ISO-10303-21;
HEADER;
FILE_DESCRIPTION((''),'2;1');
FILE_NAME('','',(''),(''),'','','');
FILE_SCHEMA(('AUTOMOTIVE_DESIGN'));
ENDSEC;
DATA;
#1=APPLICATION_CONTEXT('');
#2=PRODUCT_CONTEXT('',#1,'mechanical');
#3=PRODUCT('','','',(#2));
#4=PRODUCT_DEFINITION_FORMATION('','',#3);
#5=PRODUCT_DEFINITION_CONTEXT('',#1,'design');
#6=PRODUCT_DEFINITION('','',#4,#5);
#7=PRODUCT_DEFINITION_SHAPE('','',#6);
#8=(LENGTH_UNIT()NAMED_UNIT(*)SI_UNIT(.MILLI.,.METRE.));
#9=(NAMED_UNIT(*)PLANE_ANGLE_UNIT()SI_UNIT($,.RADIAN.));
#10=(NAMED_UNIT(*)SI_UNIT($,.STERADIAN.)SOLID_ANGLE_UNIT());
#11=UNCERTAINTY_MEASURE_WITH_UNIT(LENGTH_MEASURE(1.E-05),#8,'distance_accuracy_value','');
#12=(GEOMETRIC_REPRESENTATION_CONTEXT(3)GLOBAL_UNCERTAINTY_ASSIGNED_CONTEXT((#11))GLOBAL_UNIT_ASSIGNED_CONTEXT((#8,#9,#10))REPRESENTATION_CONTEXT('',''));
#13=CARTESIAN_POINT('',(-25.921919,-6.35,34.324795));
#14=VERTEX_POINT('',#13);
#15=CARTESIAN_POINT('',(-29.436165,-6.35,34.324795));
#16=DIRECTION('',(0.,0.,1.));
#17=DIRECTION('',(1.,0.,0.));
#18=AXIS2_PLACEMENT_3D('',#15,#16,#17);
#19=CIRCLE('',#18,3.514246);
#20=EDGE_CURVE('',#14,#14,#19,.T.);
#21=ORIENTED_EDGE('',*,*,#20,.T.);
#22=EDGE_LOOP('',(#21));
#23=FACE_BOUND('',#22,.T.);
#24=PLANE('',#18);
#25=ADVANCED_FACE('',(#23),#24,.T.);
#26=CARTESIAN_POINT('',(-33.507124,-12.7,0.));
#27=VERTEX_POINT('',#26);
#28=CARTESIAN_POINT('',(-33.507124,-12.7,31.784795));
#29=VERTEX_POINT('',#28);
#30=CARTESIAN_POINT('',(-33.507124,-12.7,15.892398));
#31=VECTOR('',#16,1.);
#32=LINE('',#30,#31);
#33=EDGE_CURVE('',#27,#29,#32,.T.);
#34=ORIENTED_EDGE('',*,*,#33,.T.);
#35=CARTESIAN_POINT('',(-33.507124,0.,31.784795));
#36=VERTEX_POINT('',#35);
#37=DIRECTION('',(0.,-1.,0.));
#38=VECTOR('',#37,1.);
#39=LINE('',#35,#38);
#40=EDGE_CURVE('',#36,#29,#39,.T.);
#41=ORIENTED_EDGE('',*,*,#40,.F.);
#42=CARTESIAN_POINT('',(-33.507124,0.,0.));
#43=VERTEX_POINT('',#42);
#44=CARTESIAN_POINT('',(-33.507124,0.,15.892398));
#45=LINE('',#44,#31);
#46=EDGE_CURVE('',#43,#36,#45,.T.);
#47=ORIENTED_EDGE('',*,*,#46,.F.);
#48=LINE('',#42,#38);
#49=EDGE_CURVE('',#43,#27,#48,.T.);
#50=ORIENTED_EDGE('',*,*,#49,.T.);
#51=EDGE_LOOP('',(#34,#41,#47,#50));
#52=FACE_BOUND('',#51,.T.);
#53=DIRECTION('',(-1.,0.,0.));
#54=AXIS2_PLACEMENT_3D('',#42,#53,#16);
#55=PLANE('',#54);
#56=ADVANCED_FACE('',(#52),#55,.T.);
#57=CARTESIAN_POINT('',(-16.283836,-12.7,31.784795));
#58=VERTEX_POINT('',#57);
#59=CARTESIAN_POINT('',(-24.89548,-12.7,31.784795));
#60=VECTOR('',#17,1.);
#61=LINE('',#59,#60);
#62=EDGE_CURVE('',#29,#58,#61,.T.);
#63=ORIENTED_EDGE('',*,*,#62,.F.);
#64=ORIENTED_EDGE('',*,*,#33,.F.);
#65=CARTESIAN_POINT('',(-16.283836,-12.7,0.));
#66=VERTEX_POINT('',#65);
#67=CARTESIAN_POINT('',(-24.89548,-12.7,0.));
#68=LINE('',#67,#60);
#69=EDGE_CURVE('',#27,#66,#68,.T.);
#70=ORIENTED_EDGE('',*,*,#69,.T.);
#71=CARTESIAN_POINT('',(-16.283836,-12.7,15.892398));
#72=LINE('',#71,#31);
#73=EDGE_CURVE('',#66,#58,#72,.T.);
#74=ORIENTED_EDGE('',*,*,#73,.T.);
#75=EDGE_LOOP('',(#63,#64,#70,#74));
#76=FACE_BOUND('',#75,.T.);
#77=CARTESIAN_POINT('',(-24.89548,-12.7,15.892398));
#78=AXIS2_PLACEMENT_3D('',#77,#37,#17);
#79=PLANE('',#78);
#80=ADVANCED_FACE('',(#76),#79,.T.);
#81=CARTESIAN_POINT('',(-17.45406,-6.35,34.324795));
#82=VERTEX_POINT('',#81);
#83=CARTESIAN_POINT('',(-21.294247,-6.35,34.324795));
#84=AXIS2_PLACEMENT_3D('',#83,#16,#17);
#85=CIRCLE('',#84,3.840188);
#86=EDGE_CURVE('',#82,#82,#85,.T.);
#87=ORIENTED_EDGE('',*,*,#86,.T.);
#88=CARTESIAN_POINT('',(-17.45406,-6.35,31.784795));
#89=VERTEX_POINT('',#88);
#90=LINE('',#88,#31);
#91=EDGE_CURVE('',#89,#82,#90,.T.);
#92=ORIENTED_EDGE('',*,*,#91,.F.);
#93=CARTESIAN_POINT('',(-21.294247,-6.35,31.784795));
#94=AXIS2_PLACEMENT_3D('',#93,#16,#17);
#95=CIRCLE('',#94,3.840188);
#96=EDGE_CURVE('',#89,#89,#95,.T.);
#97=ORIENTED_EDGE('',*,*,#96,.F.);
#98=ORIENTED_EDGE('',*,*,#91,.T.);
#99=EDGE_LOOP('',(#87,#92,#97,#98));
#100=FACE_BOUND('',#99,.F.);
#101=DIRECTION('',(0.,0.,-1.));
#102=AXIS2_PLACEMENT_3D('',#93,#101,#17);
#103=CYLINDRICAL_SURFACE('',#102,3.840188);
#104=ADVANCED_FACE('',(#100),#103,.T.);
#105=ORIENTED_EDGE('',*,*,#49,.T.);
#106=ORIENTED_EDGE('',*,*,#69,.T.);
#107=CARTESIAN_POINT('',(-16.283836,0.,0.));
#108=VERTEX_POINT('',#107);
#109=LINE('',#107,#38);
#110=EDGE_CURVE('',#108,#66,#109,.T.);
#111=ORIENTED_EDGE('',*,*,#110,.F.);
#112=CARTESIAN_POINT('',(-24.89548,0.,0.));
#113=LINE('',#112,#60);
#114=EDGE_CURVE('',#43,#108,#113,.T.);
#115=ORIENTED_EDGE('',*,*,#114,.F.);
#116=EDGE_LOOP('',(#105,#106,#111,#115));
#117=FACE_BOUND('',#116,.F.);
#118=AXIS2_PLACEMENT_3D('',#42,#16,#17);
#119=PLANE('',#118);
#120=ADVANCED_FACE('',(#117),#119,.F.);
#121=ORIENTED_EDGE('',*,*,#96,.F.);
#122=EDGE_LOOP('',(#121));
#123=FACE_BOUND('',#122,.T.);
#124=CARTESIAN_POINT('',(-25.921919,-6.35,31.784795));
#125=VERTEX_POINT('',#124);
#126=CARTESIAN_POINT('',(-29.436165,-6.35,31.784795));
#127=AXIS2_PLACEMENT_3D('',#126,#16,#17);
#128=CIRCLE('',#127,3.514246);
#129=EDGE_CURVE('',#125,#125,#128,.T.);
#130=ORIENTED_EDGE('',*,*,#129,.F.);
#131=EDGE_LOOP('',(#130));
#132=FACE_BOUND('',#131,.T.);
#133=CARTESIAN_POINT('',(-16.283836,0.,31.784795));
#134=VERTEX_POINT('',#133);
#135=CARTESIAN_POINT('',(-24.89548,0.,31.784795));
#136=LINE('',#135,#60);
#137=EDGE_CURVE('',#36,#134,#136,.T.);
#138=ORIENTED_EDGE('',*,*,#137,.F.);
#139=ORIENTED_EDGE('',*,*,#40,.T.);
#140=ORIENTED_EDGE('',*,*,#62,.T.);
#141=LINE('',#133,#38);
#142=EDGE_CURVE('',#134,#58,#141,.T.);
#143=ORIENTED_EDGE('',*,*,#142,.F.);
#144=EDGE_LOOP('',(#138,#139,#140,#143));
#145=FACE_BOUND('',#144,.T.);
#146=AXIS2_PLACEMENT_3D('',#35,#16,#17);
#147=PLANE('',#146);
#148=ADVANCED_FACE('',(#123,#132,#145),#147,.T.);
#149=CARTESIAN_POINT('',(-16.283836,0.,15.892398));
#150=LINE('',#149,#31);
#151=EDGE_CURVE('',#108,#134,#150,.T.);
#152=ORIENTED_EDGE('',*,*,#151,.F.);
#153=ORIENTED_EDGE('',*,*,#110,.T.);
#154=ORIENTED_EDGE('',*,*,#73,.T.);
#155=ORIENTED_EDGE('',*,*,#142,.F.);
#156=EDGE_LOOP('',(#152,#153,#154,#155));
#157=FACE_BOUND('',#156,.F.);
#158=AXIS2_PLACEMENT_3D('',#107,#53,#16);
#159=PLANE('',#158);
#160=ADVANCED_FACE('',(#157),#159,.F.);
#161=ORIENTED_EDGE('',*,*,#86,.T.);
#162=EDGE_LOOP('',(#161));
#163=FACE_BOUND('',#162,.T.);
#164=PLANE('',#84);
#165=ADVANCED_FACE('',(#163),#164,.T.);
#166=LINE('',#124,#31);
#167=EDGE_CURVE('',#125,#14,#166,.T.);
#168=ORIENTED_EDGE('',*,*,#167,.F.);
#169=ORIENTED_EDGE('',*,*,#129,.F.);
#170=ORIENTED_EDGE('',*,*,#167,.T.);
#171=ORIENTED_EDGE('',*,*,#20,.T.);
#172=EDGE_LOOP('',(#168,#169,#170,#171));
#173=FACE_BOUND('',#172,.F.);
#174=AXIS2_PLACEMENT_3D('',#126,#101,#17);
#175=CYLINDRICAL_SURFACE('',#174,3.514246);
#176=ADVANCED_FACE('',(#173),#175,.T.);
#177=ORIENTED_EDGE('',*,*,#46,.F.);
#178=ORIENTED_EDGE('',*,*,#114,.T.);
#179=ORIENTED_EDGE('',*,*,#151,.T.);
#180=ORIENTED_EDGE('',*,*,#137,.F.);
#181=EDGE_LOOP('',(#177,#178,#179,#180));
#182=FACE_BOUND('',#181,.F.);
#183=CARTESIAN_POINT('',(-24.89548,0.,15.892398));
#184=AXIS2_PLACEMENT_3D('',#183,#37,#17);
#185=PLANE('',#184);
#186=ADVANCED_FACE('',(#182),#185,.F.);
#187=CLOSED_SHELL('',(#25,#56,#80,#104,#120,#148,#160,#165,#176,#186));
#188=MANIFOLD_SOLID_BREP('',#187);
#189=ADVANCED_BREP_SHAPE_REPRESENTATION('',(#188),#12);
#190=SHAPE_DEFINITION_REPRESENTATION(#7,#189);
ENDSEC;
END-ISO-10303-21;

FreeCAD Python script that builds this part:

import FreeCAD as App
import Part
import Sketcher

V = App.Vector
Q = App.Units.Quantity

doc = App.newDocument("Part")
body = doc.addObject("PartDesign::Body", "Body")

sketch1 = body.newObject("Sketcher::SketchObject", "Sketch")
sketch1.AttachmentSupport = (doc.getObject("XZ_Plane"), [""])
sketch1.MapMode = "FlatFace"
sketch1.addGeometry([
    Part.LineSegment(V(-34, 32, 0), V(-34, 0, 0)),
    Part.LineSegment(V(-34, 0, 0), V(-16, 0, 0)),
    Part.LineSegment(V(-16, 0, 0), V(-16, 32, 0)),
    Part.LineSegment(V(-16, 32, 0), V(-34, 32, 0)),
], False)
sketch1.addConstraint([
    Sketcher.Constraint("Coincident", 0, 2, 1, 1),
    Sketcher.Constraint("Coincident", 1, 2, 2, 1),
    Sketcher.Constraint("Coincident", 2, 2, 3, 1),
    Sketcher.Constraint("Coincident", 3, 2, 0, 1),
    Sketcher.Constraint("Vertical", 0),
    Sketcher.Constraint("Horizontal", 1),
    Sketcher.Constraint("Vertical", 2),
    Sketcher.Constraint("Horizontal", 3),
    Sketcher.Constraint("PointOnObject", 0, 2, -1),
    Sketcher.Constraint("DistanceX", 1, 1, 1, 2, Q("17.223287 mm")),
    Sketcher.Constraint("DistanceY", 0, 2, 0, 1, Q("31.784795 mm")),
    Sketcher.Constraint("DistanceX", 0, 2, -1, 1, Q("33.507124 mm")),
])
pad1 = body.newObject("PartDesign::Pad", "Pad")
pad1.Profile = sketch1
pad1.Length = Q("0.5 in")

sketch2 = body.newObject("Sketcher::SketchObject", "Sketch001")
sketch2.AttachmentSupport = (doc.getObject("XY_Plane"), [""])
sketch2.MapMode = "FlatFace"
sketch2.AttachmentOffset = App.Placement(V(0, 0, 31.784795), App.Rotation())
sketch2.addGeometry([
    Part.Circle(V(-21.3, -6.3, 0), V(0, 0, 1), 3.8),
    Part.Circle(V(-29.4, -6.3, 0), V(0, 0, 1), 3.5),
], False)
sketch2.addConstraint([
    Sketcher.Constraint("Horizontal", 0, 3, 1, 3),
    Sketcher.Constraint("DistanceY", 0, 3, -1, 1, Q("0.25 in")),
    Sketcher.Constraint("Diameter", 0, Q("7.680375 mm")),
    Sketcher.Constraint("Diameter", 1, Q("7.028493 mm")),
    Sketcher.Constraint("DistanceX", 1, 3, 0, 3, Q("8.141918 mm")),
    Sketcher.Constraint("DistanceX", 0, 3, -1, 1, Q("21.294247 mm")),
])
pad2 = body.newObject("PartDesign::Pad", "Pad001")
pad2.Profile = sketch2
pad2.Length = Q("0.1 in")

doc.recompute()
